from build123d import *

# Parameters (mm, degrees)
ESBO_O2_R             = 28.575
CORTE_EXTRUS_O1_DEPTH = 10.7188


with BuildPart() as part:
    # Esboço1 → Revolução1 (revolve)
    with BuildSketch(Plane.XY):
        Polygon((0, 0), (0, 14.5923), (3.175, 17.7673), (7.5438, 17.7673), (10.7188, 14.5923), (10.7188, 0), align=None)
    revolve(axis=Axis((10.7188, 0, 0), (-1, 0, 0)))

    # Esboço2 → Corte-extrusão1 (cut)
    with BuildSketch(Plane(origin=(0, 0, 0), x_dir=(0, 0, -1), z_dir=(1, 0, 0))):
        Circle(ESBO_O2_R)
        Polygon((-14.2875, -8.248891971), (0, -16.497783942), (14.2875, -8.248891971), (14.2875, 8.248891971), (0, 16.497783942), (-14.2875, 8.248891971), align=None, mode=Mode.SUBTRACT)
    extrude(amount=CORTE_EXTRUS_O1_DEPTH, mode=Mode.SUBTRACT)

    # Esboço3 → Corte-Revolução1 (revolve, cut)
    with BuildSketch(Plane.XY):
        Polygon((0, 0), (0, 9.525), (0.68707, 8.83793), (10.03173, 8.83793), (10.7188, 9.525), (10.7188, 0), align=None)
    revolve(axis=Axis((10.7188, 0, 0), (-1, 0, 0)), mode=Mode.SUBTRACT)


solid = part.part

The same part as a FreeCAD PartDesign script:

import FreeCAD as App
import Part
import Sketcher
Q = App.Units.Quantity

doc = App.newDocument("Part")
body = doc.addObject("PartDesign::Body", "Body")

sketch1 = doc.addObject("Sketcher::SketchObject", "Sketch")
body.addObject(sketch1)
sketch1.AttachmentSupport = (doc.XY_Plane, [""])
sketch1.MapMode = "FlatFace"
sketch1.addGeometry([
    Part.LineSegment(App.Vector(0, 14.6, 0), App.Vector(0, 0, 0)),
    Part.LineSegment(App.Vector(0, 0, 0), App.Vector(10.7, 0, 0)),
    Part.LineSegment(App.Vector(10.7, 0, 0), App.Vector(10.7, 14.6, 0)),
    Part.LineSegment(App.Vector(10.7, 14.6, 0), App.Vector(7.5, 17.8, 0)),
    Part.LineSegment(App.Vector(7.5, 17.8, 0), App.Vector(3.2, 17.8, 0)),
    Part.LineSegment(App.Vector(3.2, 17.8, 0), App.Vector(0, 14.6, 0)),
], False)
sketch1.addConstraint([
    Sketcher.Constraint("Coincident", 0, 2, 1, 1),
    Sketcher.Constraint("Coincident", 1, 2, 2, 1),
    Sketcher.Constraint("Coincident", 2, 2, 3, 1),
    Sketcher.Constraint("Coincident", 3, 2, 4, 1),
    Sketcher.Constraint("Coincident", 4, 2, 5, 1),
    Sketcher.Constraint("Coincident", 5, 2, 0, 1),
    Sketcher.Constraint("Vertical", 0),
    Sketcher.Constraint("Horizontal", 1),
    Sketcher.Constraint("Vertical", 2),
    Sketcher.Constraint("Horizontal", 4),
    Sketcher.Constraint("Coincident", 0, 2, -1, 1),
    Sketcher.Constraint("Perpendicular", 3, 5),
    Sketcher.Constraint("Horizontal", 2, 2, 5, 2),
    Sketcher.Constraint("Equal", 3, 5),
    Sketcher.Constraint("DistanceX", 1, 1, 1, 2, Q("0.422 in")),
    Sketcher.Constraint("DistanceX", 4, 2, 4, 1, Q("0.172 in")),
    Sketcher.Constraint("DistanceY", 0, 2, 0, 1, Q("0.5745 in")),
])
revolution = doc.addObject("PartDesign::Revolution", "Revolution")
body.addObject(revolution)
revolution.Profile = sketch1
revolution.ReferenceAxis = (sketch1, ["H_Axis"])
revolution.Angle = 360

sketch2 = doc.addObject("Sketcher::SketchObject", "Sketch001")
body.addObject(sketch2)
sketch2.AttachmentSupport = (doc.YZ_Plane, [""])
sketch2.MapMode = "FlatFace"
sketch2.addGeometry([
    Part.Circle(App.Vector(0, 0, 0), App.Vector(0, 0, 1), 29),
    Part.LineSegment(App.Vector(-16, 0, 0), App.Vector(-8, 14, 0)),
    Part.LineSegment(App.Vector(-8, 14, 0), App.Vector(8, 14, 0)),
    Part.LineSegment(App.Vector(8, 14, 0), App.Vector(16, 0, 0)),
    Part.LineSegment(App.Vector(16, 0, 0), App.Vector(8, -14, 0)),
    Part.LineSegment(App.Vector(8, -14, 0), App.Vector(-8, -14, 0)),
    Part.LineSegment(App.Vector(-8, -14, 0), App.Vector(-16, 0, 0)),
], False)
sketch2.addConstraint([
    Sketcher.Constraint("Coincident", 1, 2, 2, 1),
    Sketcher.Constraint("Coincident", 2, 2, 3, 1),
    Sketcher.Constraint("Coincident", 3, 2, 4, 1),
    Sketcher.Constraint("Coincident", 4, 2, 5, 1),
    Sketcher.Constraint("Coincident", 5, 2, 6, 1),
    Sketcher.Constraint("Coincident", 6, 2, 1, 1),
    Sketcher.Constraint("Horizontal", 2),
    Sketcher.Constraint("Horizontal", 5),
    Sketcher.Constraint("Coincident", 0, 3, -1, 1),
    Sketcher.Constraint("Symmetric", 1, 2, 4, 2, -1, 1),
    Sketcher.Constraint("Symmetric", 3, 2, 6, 2, -1, 1),
    Sketcher.Constraint("PointOnObject", 3, 2, -1),
    Sketcher.Constraint("Parallel", 3, 6),
    Sketcher.Constraint("Vertical", 2, 2, 4, 2),
    Sketcher.Constraint("Diameter", 0, Q("2.25 in")),
    Sketcher.Constraint("Angle", 1, Q("60 deg")),
    Sketcher.Constraint("DistanceY", -1, 1, 1, 2, Q("0.5625 in")),
    Sketcher.Constraint("DistanceX", 2, 1, 2, 2, Q("16.497784 mm")),
])
pocket1 = doc.addObject("PartDesign::Pocket", "Pocket")
body.addObject(pocket1)
pocket1.Profile = sketch2
pocket1.Length = Q("0.422 in")
pocket1.Reversed = True

sketch3 = doc.addObject("Sketcher::SketchObject", "Sketch002")
body.addObject(sketch3)
sketch3.AttachmentSupport = (doc.XY_Plane, [""])
sketch3.MapMode = "FlatFace"
sketch3.addGeometry([
    Part.LineSegment(App.Vector(0, 9.5, 0), App.Vector(0, 0, 0)),
    Part.LineSegment(App.Vector(0, 0, 0), App.Vector(10.7, 0, 0)),
    Part.LineSegment(App.Vector(10.7, 0, 0), App.Vector(10.7, 9.5, 0)),
    Part.LineSegment(App.Vector(10.7, 9.5, 0), App.Vector(10, 8.8, 0)),
    Part.LineSegment(App.Vector(10, 8.8, 0), App.Vector(0.7, 8.8, 0)),
    Part.LineSegment(App.Vector(0.7, 8.8, 0), App.Vector(0, 9.5, 0)),
], False)
sketch3.addConstraint([
    Sketcher.Constraint("Coincident", 0, 2, 1, 1),
    Sketcher.Constraint("Coincident", 1, 2, 2, 1),
    Sketcher.Constraint("Coincident", 2, 2, 3, 1),
    Sketcher.Constraint("Coincident", 3, 2, 4, 1),
    Sketcher.Constraint("Coincident", 4, 2, 5, 1),
    Sketcher.Constraint("Coincident", 5, 2, 0, 1),
    Sketcher.Constraint("Vertical", 0),
    Sketcher.Constraint("Horizontal", 1),
    Sketcher.Constraint("Vertical", 2),
    Sketcher.Constraint("Horizontal", 4),
    Sketcher.Constraint("Coincident", 0, 2, -1, 1),
    Sketcher.Constraint("Perpendicular", 3, 5),
    Sketcher.Constraint("Horizontal", 2, 2, 5, 2),
    Sketcher.Constraint("Equal", 3, 5),
    Sketcher.Constraint("DistanceX", 1, 1, 1, 2, Q("0.422 in")),
    Sketcher.Constraint("DistanceY", 0, 2, 0, 1, Q("0.375 in")),
    Sketcher.Constraint("DistanceX", 4, 2, 4, 1, Q("0.3679 in")),
])
groove = doc.addObject("PartDesign::Groove", "Groove")
body.addObject(groove)
groove.Profile = sketch3
groove.ReferenceAxis = (sketch3, ["H_Axis"])
groove.Angle = 360

doc.recompute()
